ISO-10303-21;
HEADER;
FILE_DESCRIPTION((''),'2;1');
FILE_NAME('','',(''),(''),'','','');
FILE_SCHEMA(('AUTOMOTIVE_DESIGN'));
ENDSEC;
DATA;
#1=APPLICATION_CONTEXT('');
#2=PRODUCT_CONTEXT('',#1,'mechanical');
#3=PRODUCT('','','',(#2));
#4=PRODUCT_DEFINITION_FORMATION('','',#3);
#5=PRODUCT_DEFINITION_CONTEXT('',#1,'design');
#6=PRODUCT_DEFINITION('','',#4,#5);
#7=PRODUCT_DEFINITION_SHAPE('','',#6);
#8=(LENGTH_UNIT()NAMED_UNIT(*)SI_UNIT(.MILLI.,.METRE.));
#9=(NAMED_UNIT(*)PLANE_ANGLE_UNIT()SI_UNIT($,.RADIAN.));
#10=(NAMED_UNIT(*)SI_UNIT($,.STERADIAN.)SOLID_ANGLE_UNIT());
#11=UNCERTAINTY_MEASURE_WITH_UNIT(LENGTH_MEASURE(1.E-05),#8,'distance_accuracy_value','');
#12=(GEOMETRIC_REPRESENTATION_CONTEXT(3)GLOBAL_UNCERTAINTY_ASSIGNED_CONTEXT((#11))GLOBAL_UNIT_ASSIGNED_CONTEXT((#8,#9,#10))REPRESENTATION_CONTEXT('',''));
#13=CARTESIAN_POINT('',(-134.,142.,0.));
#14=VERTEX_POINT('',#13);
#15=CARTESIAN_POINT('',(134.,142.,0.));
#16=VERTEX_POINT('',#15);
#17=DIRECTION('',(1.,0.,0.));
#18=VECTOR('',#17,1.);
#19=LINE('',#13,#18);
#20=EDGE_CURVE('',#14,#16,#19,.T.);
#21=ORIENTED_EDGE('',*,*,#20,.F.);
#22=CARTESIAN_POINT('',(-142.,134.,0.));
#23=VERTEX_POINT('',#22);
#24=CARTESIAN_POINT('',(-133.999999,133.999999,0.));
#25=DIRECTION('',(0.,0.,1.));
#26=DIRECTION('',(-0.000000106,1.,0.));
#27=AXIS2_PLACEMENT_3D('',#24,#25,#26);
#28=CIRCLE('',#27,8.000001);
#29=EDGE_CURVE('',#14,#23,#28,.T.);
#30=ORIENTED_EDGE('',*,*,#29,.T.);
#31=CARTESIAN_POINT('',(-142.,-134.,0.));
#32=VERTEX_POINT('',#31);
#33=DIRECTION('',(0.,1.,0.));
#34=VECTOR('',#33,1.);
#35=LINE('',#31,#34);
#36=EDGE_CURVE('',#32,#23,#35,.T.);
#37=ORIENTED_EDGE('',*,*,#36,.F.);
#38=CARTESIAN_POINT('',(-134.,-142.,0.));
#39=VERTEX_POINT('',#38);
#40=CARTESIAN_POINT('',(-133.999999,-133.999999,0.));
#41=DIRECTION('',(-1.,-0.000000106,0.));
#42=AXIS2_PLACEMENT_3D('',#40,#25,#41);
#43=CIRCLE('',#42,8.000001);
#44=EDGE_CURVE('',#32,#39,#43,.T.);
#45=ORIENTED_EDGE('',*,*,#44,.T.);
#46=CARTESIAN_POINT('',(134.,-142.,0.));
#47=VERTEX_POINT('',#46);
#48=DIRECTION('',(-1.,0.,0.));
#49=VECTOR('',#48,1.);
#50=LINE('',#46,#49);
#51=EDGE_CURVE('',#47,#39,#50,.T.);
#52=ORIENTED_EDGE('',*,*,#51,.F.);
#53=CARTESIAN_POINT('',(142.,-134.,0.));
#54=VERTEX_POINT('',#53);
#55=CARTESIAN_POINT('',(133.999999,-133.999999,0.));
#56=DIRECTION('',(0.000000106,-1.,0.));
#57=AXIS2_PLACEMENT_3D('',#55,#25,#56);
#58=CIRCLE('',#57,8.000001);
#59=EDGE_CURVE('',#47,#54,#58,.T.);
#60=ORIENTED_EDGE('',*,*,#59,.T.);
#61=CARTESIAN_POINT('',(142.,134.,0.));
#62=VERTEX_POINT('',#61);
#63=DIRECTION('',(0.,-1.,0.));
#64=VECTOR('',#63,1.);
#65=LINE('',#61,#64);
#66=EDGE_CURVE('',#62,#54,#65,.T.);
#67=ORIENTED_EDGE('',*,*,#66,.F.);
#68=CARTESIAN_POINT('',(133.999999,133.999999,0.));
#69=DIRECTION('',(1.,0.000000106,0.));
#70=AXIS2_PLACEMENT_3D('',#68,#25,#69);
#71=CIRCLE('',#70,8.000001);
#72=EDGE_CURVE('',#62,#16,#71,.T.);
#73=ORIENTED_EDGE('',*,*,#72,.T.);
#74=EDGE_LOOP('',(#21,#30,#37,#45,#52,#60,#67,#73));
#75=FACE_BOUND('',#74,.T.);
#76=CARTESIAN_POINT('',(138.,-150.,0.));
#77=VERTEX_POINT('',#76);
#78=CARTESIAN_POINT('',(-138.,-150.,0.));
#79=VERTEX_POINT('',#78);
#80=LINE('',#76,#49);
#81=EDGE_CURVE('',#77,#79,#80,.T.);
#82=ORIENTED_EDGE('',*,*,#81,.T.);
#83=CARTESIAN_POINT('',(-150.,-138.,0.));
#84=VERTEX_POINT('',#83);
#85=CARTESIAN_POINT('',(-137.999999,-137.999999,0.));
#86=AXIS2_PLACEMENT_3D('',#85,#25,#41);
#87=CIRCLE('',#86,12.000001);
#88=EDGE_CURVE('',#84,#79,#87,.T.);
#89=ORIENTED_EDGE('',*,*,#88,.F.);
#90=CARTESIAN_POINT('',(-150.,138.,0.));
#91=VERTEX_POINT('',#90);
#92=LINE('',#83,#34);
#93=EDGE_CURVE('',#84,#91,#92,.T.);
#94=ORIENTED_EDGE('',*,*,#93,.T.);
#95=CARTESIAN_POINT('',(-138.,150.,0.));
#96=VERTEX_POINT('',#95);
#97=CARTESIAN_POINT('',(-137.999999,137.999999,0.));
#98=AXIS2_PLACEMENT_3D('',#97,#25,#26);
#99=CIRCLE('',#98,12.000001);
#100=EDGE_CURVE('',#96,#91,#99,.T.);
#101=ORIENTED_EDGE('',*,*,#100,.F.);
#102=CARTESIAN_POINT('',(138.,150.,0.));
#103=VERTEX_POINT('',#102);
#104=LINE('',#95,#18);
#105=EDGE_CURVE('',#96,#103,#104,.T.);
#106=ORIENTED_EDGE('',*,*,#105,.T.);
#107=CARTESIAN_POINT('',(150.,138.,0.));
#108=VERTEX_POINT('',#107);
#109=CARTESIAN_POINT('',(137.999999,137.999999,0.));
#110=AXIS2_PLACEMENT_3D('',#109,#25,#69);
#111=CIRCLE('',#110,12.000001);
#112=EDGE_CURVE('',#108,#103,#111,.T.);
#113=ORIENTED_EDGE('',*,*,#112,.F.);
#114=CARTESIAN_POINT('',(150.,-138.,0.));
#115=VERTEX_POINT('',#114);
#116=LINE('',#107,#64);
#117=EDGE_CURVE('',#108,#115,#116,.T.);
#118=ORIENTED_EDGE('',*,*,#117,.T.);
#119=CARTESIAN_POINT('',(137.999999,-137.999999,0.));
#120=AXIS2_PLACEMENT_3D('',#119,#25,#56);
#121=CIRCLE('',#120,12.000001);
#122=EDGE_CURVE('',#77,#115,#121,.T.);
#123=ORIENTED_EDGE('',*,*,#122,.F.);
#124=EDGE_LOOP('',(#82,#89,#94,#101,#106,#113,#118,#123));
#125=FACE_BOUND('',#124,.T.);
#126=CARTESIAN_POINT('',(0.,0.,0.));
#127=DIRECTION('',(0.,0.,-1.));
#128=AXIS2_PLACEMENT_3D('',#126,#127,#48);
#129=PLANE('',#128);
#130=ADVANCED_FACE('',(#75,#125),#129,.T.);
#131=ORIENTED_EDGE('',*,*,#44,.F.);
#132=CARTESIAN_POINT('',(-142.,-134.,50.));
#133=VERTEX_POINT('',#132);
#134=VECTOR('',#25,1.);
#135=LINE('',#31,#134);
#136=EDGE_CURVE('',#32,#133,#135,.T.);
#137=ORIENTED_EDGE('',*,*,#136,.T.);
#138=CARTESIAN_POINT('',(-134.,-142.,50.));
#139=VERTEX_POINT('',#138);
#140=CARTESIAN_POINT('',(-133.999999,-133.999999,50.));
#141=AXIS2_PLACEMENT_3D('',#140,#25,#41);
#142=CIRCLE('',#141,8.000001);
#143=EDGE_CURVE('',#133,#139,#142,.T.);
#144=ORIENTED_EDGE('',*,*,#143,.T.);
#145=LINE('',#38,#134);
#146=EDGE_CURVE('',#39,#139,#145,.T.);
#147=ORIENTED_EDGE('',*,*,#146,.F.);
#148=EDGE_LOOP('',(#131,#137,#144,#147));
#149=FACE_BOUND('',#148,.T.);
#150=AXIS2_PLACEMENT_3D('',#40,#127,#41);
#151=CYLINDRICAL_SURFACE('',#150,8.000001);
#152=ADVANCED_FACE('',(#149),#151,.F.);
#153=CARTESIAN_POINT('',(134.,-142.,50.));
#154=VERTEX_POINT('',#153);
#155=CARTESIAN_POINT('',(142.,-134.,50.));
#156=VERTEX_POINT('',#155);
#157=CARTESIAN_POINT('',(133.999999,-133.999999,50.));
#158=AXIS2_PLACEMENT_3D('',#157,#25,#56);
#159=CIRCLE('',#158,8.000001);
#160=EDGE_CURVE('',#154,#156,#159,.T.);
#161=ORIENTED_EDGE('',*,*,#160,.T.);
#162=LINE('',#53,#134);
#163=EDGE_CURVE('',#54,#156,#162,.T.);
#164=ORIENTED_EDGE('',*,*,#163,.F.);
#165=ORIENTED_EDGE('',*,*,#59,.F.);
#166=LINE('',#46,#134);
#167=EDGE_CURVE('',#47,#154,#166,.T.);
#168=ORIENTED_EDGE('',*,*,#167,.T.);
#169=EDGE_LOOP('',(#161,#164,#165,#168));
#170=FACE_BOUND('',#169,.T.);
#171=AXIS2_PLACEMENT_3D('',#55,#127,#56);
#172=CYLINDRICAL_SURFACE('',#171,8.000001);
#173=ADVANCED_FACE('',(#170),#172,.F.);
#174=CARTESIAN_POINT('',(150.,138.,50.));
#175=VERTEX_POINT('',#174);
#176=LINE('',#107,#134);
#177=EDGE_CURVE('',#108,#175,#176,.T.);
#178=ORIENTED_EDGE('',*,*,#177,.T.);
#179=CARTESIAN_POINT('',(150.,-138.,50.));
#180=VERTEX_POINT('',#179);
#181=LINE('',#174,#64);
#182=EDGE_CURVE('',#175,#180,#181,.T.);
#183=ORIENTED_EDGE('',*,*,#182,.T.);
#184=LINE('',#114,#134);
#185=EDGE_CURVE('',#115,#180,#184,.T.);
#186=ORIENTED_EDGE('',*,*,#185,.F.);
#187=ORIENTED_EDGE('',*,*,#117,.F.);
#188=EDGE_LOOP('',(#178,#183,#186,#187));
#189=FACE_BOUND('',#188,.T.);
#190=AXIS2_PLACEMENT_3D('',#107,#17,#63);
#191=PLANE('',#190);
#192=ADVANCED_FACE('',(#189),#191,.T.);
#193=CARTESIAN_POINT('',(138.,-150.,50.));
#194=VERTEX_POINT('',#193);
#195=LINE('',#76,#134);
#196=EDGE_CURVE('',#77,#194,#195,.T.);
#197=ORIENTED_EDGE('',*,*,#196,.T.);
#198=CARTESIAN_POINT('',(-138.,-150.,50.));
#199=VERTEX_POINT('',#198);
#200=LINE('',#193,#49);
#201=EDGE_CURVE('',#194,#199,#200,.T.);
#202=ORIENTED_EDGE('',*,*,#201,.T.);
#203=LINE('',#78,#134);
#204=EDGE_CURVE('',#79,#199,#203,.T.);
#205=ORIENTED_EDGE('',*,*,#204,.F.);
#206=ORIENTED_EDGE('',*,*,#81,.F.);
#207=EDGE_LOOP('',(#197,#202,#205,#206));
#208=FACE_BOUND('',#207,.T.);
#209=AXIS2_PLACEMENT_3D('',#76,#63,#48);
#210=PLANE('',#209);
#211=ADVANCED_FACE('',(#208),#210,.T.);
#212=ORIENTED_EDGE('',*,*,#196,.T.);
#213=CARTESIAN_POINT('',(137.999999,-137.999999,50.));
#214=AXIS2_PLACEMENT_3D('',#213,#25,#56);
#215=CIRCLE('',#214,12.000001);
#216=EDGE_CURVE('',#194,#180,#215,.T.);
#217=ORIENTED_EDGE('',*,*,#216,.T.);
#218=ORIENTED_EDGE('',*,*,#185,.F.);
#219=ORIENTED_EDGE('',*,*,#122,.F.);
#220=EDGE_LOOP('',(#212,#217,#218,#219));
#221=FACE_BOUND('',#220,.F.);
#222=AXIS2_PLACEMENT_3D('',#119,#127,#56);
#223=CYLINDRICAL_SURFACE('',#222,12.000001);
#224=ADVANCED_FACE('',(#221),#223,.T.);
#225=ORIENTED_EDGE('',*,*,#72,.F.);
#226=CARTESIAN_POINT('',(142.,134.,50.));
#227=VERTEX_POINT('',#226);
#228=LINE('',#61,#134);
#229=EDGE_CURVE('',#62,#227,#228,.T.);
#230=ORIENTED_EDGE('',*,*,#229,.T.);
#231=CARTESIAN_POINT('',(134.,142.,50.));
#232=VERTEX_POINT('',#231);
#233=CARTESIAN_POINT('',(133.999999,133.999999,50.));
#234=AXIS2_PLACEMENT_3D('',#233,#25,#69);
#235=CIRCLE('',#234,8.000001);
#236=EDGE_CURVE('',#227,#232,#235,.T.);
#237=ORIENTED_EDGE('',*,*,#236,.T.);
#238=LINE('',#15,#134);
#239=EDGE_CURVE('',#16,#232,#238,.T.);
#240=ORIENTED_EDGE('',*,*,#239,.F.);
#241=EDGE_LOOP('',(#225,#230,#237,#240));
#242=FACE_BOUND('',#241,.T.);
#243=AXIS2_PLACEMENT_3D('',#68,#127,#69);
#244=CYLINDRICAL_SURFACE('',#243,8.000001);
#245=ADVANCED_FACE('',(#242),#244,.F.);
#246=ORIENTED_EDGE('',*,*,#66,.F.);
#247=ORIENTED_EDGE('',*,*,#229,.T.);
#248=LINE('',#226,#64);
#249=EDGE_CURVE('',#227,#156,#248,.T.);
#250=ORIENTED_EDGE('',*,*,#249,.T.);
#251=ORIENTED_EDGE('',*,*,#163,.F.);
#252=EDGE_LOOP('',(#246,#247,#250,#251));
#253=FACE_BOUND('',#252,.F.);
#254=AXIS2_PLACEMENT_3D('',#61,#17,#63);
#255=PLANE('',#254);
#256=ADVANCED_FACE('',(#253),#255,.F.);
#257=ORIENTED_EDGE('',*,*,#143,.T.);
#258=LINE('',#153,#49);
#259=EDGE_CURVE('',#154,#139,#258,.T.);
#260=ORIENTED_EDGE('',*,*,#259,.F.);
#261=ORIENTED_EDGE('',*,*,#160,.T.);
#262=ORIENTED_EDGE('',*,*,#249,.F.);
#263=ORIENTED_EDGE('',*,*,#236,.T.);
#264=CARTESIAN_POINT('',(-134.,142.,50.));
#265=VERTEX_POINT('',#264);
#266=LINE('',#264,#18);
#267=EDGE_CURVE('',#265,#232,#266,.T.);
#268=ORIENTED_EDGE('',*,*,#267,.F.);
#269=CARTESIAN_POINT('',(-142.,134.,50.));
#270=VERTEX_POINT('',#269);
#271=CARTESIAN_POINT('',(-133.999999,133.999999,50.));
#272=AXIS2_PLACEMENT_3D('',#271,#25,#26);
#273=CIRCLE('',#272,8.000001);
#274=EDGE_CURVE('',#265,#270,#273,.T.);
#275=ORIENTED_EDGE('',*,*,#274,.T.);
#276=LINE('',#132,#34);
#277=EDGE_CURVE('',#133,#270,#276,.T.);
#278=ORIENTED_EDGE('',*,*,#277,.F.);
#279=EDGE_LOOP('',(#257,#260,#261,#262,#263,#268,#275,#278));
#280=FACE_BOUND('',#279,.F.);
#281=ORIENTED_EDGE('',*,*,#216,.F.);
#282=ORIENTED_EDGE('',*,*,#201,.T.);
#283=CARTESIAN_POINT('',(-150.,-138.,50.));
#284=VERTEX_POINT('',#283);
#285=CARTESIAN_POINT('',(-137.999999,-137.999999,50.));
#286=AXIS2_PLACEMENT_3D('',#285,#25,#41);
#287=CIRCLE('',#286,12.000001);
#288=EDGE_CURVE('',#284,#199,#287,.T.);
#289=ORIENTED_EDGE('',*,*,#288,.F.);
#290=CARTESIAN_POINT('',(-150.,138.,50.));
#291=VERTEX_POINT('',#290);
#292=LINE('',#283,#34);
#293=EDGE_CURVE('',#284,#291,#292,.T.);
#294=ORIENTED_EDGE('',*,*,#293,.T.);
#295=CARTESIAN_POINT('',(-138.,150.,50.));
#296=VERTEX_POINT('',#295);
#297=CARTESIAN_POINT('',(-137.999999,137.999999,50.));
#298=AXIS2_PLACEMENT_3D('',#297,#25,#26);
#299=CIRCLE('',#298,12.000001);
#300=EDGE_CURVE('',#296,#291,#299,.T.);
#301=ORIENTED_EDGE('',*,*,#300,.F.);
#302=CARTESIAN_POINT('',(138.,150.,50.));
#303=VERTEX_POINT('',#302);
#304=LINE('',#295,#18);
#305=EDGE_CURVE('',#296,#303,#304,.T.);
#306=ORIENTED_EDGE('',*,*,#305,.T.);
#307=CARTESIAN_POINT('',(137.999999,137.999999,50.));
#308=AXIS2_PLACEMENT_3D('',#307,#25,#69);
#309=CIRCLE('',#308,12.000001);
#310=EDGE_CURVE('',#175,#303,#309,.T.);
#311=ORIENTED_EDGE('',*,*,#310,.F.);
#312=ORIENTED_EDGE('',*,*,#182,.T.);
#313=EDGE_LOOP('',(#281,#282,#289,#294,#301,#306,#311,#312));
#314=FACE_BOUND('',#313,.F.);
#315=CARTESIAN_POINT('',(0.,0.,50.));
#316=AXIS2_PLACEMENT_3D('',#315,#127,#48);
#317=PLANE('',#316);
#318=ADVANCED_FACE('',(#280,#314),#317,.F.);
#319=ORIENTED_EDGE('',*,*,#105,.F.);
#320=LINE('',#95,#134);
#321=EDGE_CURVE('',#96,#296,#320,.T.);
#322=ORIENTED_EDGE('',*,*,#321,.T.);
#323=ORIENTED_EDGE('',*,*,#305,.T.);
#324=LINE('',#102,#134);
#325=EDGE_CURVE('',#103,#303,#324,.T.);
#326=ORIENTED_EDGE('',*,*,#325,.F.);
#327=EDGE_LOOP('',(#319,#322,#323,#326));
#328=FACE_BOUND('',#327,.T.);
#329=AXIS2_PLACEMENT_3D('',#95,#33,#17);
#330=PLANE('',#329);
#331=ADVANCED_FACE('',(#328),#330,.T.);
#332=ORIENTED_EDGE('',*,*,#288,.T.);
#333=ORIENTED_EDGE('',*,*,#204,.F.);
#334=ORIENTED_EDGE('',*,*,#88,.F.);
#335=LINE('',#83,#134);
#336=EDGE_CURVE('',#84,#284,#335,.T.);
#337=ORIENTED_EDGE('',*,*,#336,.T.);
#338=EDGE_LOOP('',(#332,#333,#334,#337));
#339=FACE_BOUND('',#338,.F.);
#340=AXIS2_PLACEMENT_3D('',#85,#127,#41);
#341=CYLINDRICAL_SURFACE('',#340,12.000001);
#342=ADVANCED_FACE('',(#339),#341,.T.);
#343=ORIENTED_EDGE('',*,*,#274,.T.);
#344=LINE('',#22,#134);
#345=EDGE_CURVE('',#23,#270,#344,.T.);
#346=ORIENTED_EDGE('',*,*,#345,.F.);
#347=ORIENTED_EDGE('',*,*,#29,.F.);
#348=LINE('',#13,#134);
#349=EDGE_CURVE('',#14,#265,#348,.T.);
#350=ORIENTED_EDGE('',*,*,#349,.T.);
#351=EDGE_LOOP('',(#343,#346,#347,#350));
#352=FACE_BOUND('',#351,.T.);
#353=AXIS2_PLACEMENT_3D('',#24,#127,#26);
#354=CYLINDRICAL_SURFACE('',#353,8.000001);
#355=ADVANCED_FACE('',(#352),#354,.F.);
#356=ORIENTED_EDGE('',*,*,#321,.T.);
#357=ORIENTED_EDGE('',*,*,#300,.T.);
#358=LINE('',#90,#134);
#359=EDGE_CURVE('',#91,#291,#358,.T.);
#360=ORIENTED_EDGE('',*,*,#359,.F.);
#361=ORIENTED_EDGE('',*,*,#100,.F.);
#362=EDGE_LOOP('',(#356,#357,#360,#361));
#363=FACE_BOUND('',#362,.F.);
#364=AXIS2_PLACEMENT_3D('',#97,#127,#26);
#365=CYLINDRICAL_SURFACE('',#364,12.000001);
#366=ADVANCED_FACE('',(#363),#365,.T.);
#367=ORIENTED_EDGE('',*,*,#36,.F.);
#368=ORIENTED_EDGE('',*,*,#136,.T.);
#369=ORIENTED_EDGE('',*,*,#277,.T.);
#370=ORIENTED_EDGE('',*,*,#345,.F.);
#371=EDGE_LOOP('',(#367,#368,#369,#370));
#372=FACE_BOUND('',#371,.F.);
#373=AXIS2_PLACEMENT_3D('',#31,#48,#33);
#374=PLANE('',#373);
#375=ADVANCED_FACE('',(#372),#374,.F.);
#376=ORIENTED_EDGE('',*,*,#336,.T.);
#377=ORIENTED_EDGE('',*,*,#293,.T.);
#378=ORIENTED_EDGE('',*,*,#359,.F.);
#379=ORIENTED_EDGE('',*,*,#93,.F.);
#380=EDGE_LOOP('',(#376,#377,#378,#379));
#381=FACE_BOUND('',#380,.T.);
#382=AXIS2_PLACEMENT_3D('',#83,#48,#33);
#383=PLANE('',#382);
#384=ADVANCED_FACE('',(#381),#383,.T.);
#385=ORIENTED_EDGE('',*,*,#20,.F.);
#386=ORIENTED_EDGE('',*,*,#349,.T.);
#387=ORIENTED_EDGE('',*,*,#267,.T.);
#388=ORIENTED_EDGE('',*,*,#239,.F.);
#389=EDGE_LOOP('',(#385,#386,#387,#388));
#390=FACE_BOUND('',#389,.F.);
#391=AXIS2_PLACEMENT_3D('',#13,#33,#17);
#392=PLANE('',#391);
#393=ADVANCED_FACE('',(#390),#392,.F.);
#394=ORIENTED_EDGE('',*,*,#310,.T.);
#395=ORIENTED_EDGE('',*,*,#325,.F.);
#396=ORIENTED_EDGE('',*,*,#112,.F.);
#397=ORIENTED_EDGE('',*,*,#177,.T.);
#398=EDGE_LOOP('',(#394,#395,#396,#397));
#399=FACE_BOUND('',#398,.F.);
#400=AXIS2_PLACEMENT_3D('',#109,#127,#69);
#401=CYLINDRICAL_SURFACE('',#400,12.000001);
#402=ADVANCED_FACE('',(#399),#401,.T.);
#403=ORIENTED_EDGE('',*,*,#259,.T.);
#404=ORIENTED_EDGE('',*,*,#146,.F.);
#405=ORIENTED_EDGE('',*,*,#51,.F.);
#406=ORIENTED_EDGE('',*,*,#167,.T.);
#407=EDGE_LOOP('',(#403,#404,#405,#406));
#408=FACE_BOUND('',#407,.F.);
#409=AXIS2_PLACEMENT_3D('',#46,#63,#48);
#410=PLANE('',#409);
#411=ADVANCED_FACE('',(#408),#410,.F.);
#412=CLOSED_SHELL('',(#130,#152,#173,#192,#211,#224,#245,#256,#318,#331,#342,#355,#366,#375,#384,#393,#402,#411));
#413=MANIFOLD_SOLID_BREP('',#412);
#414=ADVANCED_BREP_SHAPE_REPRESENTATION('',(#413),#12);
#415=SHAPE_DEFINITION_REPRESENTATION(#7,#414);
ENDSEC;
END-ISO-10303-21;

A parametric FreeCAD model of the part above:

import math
import FreeCAD as App
import Part
import Sketcher

doc = App.newDocument("Part")
body = doc.addObject("PartDesign::Body", "Body")

sketch1 = body.newObject("Sketcher::SketchObject", "Sketch")
sketch1.AttachmentSupport = (doc.getObject("XY_Plane"), [""])
sketch1.MapMode = "FlatFace"
sketch1.addGeometry([
    Part.LineSegment(App.Vector(138, 150, 0), App.Vector(-138, 150, 0)),
    Part.ArcOfCircle(Part.Circle(App.Vector(-138, 138, 0), App.Vector(0, 0, 1), 12), math.radians(90), math.radians(180)),
    Part.LineSegment(App.Vector(-150, 138, 0), App.Vector(-150, -138, 0)),
    Part.ArcOfCircle(Part.Circle(App.Vector(-138, -138, 0), App.Vector(0, 0, 1), 12), math.radians(-180), math.radians(-90)),
    Part.LineSegment(App.Vector(-138, -150, 0), App.Vector(138, -150, 0)),
    Part.ArcOfCircle(Part.Circle(App.Vector(138, -138, 0), App.Vector(0, 0, 1), 12), math.radians(-90), math.radians(0)),
    Part.LineSegment(App.Vector(150, -138, 0), App.Vector(150, 138, 0)),
    Part.ArcOfCircle(Part.Circle(App.Vector(138, 138, 0), App.Vector(0, 0, 1), 12), math.radians(0), math.radians(90)),
    Part.LineSegment(App.Vector(-134, 142, 0), App.Vector(134, 142, 0)),
    Part.ArcOfCircle(Part.Circle(App.Vector(134, 134, 0), App.Vector(0, 0, 1), 8), math.radians(0), math.radians(90)),
    Part.LineSegment(App.Vector(142, 134, 0), App.Vector(142, -134, 0)),
    Part.ArcOfCircle(Part.Circle(App.Vector(134, -134, 0), App.Vector(0, 0, 1), 8), math.radians(-90), math.radians(0)),
    Part.LineSegment(App.Vector(134, -142, 0), App.Vector(-134, -142, 0)),
    Part.ArcOfCircle(Part.Circle(App.Vector(-134, -134, 0), App.Vector(0, 0, 1), 8), math.radians(-180), math.radians(-90)),
    Part.LineSegment(App.Vector(-142, -134, 0), App.Vector(-142, 134, 0)),
    Part.ArcOfCircle(Part.Circle(App.Vector(-134, 134, 0), App.Vector(0, 0, 1), 8), math.radians(90), math.radians(180)),
], False)
sketch1.addConstraint([
    Sketcher.Constraint("Tangent", 0, 2, 1, 1),
    Sketcher.Constraint("Tangent", 1, 2, 2, 1),
    Sketcher.Constraint("Tangent", 2, 2, 3, 1),
    Sketcher.Constraint("Tangent", 3, 2, 4, 1),
    Sketcher.Constraint("Tangent", 4, 2, 5, 1),
    Sketcher.Constraint("Tangent", 5, 2, 6, 1),
    Sketcher.Constraint("Tangent", 6, 2, 7, 1),
    Sketcher.Constraint("Tangent", 7, 2, 0, 1),
    Sketcher.Constraint("Tangent", 8, 2, 9, 2),
    Sketcher.Constraint("Tangent", 9, 1, 10, 1),
    Sketcher.Constraint("Tangent", 10, 2, 11, 2),
    Sketcher.Constraint("Tangent", 11, 1, 12, 1),
    Sketcher.Constraint("Tangent", 12, 2, 13, 2),
    Sketcher.Constraint("Tangent", 13, 1, 14, 1),
    Sketcher.Constraint("Tangent", 14, 2, 15, 2),
    Sketcher.Constraint("Tangent", 15, 1, 8, 1),
    Sketcher.Constraint("Horizontal", 0),
    Sketcher.Constraint("Vertical", 2),
    Sketcher.Constraint("Horizontal", 4),
    Sketcher.Constraint("Vertical", 6),
    Sketcher.Constraint("Horizontal", 8),
    Sketcher.Constraint("Vertical", 10),
    Sketcher.Constraint("Horizontal", 12),
    Sketcher.Constraint("Vertical", 14),
    Sketcher.Constraint("Equal", 1, 3),
    Sketcher.Constraint("Equal", 3, 5),
    Sketcher.Constraint("Equal", 5, 7),
    Sketcher.Constraint("Equal", 9, 11),
    Sketcher.Constraint("Equal", 11, 13),
    Sketcher.Constraint("Equal", 13, 15),
    Sketcher.Constraint("Symmetric", 1, 3, 5, 3, -1, 1),
    Sketcher.Constraint("Symmetric", 9, 3, 13, 3, -1, 1),
    Sketcher.Constraint("Equal", 4, 2),
    Sketcher.Constraint("Equal", 12, 10),
    Sketcher.Constraint("Radius", 1, 12.000001),
    Sketcher.Constraint("Radius", 9, 8.000001),
    Sketcher.Constraint("DistanceX", 0, 2, 0, 1, 276.0),
    Sketcher.Constraint("DistanceX", 8, 1, 8, 2, 268.0),
])
pad1 = body.newObject("PartDesign::Pad", "Pad")
pad1.Profile = sketch1
pad1.Length = 50

doc.recompute()
